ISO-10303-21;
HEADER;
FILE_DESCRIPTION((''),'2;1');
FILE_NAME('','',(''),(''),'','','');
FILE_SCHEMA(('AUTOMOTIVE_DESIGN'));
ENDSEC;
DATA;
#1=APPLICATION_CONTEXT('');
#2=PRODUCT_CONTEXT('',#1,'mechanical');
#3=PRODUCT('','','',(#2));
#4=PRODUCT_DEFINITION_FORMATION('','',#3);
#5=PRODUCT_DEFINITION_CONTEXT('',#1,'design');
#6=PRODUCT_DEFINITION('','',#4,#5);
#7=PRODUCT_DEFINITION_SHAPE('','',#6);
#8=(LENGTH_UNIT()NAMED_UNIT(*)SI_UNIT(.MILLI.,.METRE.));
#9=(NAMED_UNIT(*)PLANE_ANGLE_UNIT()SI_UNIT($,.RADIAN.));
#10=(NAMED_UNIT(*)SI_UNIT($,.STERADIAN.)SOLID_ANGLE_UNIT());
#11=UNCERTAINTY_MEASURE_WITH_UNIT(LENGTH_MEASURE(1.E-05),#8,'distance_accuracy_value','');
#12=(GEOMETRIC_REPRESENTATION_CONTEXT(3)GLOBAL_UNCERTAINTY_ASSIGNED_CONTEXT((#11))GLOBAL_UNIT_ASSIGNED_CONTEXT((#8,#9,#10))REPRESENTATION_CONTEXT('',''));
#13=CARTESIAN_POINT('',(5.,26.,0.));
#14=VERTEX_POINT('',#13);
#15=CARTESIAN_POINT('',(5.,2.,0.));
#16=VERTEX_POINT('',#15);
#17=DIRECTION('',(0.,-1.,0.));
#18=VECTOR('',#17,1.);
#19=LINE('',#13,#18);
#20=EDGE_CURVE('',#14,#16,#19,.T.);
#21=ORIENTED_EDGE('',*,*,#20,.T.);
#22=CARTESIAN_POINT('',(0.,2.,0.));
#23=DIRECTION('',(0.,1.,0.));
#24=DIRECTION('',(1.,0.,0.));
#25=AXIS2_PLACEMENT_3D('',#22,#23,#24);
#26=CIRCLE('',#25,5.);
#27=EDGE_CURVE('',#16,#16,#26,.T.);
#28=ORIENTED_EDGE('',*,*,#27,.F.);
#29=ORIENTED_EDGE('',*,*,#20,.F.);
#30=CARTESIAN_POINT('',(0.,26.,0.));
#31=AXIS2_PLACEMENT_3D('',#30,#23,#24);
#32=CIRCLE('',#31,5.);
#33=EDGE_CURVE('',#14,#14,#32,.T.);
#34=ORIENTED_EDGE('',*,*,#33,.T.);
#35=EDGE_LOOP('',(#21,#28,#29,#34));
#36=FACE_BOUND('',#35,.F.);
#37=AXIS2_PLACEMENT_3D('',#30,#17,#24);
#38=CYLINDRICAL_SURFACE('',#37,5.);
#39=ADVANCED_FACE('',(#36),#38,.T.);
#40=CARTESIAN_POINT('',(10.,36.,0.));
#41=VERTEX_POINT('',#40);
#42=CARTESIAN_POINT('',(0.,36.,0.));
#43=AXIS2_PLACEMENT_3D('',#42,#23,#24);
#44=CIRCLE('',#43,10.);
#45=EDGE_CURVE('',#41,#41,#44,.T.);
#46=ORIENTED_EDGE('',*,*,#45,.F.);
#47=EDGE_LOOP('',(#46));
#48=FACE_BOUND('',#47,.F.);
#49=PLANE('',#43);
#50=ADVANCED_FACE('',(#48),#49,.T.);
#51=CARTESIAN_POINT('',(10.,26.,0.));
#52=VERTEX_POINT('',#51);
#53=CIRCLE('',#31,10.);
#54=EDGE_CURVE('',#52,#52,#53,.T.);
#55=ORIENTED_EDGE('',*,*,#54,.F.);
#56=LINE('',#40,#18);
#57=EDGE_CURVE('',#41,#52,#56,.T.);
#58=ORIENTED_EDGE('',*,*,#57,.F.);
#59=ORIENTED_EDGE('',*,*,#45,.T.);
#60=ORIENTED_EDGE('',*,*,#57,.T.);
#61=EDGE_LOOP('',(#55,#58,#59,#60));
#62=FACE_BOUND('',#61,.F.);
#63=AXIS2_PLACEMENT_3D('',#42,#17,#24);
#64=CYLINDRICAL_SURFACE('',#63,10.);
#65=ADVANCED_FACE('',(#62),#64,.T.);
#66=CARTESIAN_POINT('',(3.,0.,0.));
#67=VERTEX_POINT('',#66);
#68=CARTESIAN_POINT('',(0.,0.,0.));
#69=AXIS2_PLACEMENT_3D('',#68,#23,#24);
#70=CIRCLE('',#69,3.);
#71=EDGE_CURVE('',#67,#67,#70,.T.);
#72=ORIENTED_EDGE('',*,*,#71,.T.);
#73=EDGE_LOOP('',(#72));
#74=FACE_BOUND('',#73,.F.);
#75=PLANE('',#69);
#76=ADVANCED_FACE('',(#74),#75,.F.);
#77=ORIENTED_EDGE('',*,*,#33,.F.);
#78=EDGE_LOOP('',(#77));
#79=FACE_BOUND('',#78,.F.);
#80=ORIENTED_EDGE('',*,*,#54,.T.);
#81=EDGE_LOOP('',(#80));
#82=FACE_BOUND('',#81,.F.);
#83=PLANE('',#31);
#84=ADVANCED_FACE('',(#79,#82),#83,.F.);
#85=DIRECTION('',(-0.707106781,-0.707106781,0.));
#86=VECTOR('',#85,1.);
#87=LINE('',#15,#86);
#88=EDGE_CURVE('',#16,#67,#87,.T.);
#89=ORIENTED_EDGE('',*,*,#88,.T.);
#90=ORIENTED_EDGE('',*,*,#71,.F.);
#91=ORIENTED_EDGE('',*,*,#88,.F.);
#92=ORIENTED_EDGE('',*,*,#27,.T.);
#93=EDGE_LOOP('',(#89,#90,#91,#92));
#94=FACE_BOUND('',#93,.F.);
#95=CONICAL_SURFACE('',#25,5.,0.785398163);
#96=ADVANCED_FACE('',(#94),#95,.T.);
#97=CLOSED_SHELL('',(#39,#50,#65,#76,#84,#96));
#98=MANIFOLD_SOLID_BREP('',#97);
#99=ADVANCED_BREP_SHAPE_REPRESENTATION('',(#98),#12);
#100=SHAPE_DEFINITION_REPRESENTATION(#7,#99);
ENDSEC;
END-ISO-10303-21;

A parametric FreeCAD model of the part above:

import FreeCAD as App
import Part
import Sketcher


def edges_at(feature, points):
    """Names of the edges that pass closest to the given points."""
    edges = feature.Shape.Edges
    near = lambda p: min(range(len(edges)), key=lambda i: edges[i].distToShape(Part.Vertex(*p))[0])
    return sorted({f"Edge{near(p) + 1}" for p in points})

doc = App.newDocument("Part")
body = doc.addObject("PartDesign::Body", "Body")

sketch1 = body.newObject("Sketcher::SketchObject", "Sketch")
sketch1.AttachmentSupport = (doc.getObject("XY_Plane"), [""])
sketch1.MapMode = "FlatFace"
sketch1.addGeometry([
    Part.LineSegment(App.Vector(0, 36, 0), App.Vector(0, 0, 0)),
    Part.LineSegment(App.Vector(0, 0, 0), App.Vector(5, 0, 0)),
    Part.LineSegment(App.Vector(5, 0, 0), App.Vector(5, 26, 0)),
    Part.LineSegment(App.Vector(5, 26, 0), App.Vector(10, 26, 0)),
    Part.LineSegment(App.Vector(10, 26, 0), App.Vector(10, 36, 0)),
    Part.LineSegment(App.Vector(10, 36, 0), App.Vector(0, 36, 0)),
], False)
sketch1.addConstraint([
    Sketcher.Constraint("Coincident", 0, 2, 1, 1),
    Sketcher.Constraint("Coincident", 1, 2, 2, 1),
    Sketcher.Constraint("Coincident", 2, 2, 3, 1),
    Sketcher.Constraint("Coincident", 3, 2, 4, 1),
    Sketcher.Constraint("Coincident", 4, 2, 5, 1),
    Sketcher.Constraint("Coincident", 5, 2, 0, 1),
    Sketcher.Constraint("Vertical", 0),
    Sketcher.Constraint("Horizontal", 1),
    Sketcher.Constraint("Vertical", 2),
    Sketcher.Constraint("Horizontal", 3),
    Sketcher.Constraint("Vertical", 4),
    Sketcher.Constraint("Horizontal", 5),
    Sketcher.Constraint("Coincident", 0, 2, -1, 1),
    Sketcher.Constraint("Equal", 1, 3),
    Sketcher.Constraint("Equal", 5, 4),
    Sketcher.Constraint("DistanceX", 1, 1, 1, 2, 5.0),
    Sketcher.Constraint("DistanceY", 0, 2, 0, 1, 36.0),
])
revolution = body.newObject("PartDesign::Revolution", "Revolution")
revolution.Profile = sketch1
revolution.ReferenceAxis = (sketch1, ["V_Axis"])
revolution.Angle = 360
doc.recompute()

chamfer = body.newObject("PartDesign::Chamfer", "Chamfer")
chamfer.Base = (revolution, edges_at(revolution, [(-5, 0, 0)]))
chamfer.Size = 2

doc.recompute()
